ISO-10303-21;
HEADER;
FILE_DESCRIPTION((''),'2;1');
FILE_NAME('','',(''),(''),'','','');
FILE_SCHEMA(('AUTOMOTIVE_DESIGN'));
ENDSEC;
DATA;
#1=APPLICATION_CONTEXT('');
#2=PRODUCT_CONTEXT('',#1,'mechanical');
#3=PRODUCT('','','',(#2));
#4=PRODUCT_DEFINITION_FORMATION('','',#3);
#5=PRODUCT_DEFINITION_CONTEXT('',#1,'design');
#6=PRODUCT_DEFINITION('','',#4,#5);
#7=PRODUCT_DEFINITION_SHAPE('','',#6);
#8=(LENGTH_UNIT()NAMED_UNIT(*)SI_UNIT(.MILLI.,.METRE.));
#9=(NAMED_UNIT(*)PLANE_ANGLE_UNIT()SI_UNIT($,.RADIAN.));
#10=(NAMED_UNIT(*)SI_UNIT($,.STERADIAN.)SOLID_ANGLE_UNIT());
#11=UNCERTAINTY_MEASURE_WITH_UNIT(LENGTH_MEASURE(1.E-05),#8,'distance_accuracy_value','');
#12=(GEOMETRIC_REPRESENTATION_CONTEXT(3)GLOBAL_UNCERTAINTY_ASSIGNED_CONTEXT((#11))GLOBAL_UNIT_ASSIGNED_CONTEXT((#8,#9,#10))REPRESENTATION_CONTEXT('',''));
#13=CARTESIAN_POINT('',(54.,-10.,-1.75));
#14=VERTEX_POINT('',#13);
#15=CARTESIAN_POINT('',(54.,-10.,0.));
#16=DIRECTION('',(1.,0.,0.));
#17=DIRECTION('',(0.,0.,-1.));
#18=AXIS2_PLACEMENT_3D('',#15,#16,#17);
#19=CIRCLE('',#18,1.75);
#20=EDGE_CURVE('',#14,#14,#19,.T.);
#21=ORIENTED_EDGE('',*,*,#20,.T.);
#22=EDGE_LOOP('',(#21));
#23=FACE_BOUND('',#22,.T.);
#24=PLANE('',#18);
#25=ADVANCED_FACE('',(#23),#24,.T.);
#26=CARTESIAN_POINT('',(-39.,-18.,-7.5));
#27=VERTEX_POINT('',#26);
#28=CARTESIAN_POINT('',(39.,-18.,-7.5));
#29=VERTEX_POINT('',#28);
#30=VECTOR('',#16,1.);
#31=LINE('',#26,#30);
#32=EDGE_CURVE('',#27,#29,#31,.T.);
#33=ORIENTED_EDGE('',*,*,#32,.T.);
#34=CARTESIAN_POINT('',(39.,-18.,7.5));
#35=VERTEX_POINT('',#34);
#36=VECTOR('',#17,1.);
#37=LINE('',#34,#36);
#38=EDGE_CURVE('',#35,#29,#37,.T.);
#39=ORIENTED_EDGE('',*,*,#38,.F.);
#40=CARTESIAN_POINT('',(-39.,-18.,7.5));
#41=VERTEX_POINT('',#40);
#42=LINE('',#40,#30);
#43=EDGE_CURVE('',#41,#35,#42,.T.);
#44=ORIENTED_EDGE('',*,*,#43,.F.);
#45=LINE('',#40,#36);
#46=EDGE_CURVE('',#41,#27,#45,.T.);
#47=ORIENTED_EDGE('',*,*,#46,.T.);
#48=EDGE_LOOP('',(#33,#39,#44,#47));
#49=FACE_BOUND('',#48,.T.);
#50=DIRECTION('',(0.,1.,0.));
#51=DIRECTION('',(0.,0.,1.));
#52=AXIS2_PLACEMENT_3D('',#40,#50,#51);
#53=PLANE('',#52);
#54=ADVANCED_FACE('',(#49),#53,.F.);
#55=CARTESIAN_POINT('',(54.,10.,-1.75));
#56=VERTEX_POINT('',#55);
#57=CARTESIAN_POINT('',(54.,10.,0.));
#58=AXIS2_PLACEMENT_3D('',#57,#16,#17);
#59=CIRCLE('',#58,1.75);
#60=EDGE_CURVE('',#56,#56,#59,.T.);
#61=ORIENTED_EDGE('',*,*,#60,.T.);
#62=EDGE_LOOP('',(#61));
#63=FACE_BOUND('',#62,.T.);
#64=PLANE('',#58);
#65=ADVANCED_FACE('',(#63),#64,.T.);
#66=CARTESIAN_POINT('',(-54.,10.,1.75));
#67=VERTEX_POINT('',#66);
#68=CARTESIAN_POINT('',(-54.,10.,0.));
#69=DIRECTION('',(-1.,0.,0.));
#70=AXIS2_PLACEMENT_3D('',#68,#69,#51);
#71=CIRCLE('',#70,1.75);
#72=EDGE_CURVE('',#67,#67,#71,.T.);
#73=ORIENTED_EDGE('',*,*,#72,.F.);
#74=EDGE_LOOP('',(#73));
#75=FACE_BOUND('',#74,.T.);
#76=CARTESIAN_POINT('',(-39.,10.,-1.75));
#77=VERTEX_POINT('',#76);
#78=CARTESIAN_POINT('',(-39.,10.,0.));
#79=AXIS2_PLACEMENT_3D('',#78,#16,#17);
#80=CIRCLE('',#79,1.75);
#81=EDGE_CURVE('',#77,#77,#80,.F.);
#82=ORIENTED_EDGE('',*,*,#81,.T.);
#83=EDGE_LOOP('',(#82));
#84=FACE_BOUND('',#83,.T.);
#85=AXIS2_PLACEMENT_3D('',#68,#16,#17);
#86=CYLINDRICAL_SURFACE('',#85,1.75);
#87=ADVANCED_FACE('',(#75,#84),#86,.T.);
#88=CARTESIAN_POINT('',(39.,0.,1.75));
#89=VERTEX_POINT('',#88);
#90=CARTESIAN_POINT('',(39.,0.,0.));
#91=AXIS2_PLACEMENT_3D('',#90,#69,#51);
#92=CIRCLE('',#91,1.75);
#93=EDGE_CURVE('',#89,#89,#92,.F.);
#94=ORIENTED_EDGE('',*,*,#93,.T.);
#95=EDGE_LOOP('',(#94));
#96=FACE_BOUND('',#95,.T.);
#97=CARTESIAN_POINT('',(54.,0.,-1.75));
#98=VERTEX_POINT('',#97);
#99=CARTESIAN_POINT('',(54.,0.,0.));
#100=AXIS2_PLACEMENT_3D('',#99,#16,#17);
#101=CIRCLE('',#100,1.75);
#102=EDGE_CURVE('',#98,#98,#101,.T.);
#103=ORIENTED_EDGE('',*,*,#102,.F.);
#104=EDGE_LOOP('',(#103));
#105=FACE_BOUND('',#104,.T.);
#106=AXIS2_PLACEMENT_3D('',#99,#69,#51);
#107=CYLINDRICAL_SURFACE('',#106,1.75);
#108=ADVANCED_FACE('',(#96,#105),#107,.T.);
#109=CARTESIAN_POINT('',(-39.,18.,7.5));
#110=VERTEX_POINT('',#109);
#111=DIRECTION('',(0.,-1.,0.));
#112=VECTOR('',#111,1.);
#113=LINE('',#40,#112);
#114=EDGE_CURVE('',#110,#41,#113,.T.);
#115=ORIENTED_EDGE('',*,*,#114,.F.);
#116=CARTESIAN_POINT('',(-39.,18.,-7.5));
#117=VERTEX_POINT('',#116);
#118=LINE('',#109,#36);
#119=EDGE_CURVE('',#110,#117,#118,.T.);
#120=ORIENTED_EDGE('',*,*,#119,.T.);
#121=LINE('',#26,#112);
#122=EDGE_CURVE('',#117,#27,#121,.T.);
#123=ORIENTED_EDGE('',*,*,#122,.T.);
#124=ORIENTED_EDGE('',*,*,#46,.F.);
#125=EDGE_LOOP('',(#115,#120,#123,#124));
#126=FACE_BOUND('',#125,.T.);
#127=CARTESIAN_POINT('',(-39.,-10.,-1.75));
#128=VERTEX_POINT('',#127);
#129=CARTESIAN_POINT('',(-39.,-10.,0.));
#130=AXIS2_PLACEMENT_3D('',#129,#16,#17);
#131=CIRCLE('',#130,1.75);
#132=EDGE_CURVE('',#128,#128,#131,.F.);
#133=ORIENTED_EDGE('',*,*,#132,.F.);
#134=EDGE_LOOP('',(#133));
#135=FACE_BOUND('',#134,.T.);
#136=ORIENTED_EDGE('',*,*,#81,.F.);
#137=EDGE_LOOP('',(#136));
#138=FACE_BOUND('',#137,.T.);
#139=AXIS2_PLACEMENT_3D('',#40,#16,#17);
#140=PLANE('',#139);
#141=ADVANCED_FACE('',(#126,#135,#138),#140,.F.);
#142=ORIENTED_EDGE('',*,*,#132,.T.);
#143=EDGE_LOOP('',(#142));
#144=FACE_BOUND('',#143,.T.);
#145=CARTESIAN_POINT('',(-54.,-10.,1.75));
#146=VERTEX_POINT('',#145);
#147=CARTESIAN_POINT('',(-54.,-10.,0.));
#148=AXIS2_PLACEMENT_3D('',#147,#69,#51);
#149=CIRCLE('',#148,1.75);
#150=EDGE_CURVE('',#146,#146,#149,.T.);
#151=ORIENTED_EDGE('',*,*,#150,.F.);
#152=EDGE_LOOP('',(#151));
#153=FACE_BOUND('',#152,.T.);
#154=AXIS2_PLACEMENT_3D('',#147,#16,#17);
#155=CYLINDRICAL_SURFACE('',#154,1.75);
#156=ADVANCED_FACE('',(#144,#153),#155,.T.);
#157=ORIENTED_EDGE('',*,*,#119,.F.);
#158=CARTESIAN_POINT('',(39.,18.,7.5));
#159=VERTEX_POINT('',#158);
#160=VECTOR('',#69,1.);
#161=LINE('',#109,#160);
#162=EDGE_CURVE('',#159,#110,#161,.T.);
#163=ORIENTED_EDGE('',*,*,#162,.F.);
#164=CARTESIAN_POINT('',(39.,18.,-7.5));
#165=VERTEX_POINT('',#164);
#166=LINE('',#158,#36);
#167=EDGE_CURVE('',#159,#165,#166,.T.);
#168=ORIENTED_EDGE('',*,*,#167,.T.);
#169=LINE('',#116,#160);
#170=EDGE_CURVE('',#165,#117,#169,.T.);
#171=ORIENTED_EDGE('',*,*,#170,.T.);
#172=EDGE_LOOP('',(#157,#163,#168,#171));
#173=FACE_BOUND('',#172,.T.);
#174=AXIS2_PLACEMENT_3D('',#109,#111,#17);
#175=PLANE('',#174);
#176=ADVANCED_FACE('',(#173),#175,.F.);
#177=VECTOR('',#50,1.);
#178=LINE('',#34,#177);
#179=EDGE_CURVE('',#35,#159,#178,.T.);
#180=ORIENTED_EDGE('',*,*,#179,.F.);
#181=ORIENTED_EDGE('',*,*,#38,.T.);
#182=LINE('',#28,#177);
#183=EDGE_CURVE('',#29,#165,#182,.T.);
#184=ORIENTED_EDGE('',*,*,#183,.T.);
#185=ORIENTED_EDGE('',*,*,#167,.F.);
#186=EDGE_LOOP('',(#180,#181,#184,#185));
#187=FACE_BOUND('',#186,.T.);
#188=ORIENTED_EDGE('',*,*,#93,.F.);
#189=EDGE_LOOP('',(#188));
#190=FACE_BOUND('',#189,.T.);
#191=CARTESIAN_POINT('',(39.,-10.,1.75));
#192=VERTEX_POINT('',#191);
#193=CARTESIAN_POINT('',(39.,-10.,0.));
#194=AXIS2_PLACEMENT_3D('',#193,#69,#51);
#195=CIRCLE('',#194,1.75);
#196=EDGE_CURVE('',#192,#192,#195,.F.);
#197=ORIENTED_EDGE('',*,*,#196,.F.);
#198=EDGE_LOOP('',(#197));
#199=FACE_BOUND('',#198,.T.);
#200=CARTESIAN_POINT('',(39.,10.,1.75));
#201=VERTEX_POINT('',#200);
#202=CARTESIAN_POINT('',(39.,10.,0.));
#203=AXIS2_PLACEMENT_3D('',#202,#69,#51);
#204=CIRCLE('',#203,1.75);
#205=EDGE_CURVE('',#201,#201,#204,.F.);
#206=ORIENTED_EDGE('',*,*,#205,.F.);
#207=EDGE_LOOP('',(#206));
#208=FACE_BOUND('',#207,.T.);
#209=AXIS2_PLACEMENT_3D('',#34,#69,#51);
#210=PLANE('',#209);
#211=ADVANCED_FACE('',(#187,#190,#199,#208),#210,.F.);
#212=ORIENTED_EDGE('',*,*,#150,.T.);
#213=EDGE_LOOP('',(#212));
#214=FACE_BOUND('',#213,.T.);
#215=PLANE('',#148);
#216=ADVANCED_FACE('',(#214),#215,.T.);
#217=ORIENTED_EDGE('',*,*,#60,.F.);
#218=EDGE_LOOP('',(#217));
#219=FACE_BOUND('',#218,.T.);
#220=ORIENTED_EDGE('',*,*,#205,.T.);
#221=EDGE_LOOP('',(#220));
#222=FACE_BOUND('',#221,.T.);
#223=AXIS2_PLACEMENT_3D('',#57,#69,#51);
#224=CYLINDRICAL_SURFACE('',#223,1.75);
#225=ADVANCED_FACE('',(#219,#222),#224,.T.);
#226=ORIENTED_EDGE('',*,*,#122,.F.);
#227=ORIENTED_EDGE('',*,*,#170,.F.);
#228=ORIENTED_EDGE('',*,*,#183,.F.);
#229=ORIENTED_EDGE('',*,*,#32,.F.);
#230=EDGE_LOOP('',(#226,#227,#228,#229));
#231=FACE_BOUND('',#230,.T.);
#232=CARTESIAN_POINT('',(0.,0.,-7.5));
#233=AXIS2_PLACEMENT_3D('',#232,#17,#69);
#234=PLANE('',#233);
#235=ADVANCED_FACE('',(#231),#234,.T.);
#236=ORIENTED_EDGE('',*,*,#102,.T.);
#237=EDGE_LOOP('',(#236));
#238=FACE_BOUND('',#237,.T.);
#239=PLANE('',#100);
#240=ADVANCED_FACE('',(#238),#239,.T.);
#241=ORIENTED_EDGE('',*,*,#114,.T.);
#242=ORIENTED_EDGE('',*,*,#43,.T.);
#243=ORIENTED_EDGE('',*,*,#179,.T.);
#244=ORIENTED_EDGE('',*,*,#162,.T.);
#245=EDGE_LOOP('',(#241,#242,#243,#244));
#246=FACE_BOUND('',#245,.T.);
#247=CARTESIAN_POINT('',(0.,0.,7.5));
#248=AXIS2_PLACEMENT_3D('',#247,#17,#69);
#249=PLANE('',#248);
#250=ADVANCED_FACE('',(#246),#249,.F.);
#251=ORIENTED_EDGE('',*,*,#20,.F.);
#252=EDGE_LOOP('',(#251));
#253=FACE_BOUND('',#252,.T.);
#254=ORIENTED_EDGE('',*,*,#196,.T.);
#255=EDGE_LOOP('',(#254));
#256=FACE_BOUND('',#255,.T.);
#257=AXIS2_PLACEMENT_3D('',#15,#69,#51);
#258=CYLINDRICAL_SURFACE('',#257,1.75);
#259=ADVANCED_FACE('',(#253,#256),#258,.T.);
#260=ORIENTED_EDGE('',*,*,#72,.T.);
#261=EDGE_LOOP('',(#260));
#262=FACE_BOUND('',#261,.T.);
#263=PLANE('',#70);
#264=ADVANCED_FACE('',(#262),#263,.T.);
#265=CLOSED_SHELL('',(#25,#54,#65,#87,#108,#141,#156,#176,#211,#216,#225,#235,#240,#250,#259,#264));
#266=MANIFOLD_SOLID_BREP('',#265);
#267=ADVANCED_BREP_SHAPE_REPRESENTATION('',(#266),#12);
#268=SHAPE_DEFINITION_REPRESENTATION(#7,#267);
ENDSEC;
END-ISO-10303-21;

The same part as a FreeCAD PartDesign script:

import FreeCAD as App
import Part
import Sketcher


def add_polygon(sketch, points):
    """Adds a closed chain of lines whose ends are joined by coincident constraints."""
    first, n = sketch.GeometryCount, len(points)
    for a, b in zip(points, points[1:] + points[:1]):
        sketch.addGeometry(Part.LineSegment(App.Vector(*a, 0), App.Vector(*b, 0)), False)
    for i in range(n):
        sketch.addConstraint(Sketcher.Constraint("Coincident", first + i, 2, first + (i + 1) % n, 1))

doc = App.newDocument("Part")
body = doc.addObject("PartDesign::Body", "Body")

sketch1 = body.newObject("Sketcher::SketchObject", "Sketch")
sketch1.AttachmentSupport = (doc.getObject("XY_Plane"), [""])
sketch1.MapMode = "FlatFace"
add_polygon(sketch1, [(-39, 18), (-39, -18), (39, -18), (39, 18)])
sketch1.addConstraint(Sketcher.Constraint("Vertical", 0))
sketch1.addConstraint(Sketcher.Constraint("Horizontal", 1))
sketch1.addConstraint(Sketcher.Constraint("Vertical", 2))
sketch1.addConstraint(Sketcher.Constraint("Horizontal", 3))
sketch1.addConstraint(Sketcher.Constraint("Symmetric", 0, 2, 2, 2, -1, 1))
sketch1.addConstraint(Sketcher.Constraint("DistanceX", 1, 1, 1, 2, 78.0))
sketch1.addConstraint(Sketcher.Constraint("DistanceY", 0, 2, 0, 1, 36.0))
pad1 = body.newObject("PartDesign::Pad", "Pad")
pad1.Profile = sketch1
pad1.Length = 15
pad1.Midplane = True

sketch2 = body.newObject("Sketcher::SketchObject", "Sketch001")
sketch2.AttachmentSupport = (doc.getObject("YZ_Plane"), [""])
sketch2.MapMode = "FlatFace"
sketch2.AttachmentOffset = App.Placement(App.Vector(0, 0, 39), App.Rotation())
sketch2.addGeometry(Part.Circle(App.Vector(-10, 0, 0), App.Vector(0, 0, 1), 1.8), False)
sketch2.addGeometry(Part.Circle(App.Vector(0, 0, 0), App.Vector(0, 0, 1), 1.8), False)
sketch2.addGeometry(Part.Circle(App.Vector(10, 0, 0), App.Vector(0, 0, 1), 1.8), False)
sketch2.addConstraint(Sketcher.Constraint("Coincident", 1, 3, -1, 1))
sketch2.addConstraint(Sketcher.Constraint("Equal", 0, 1))
sketch2.addConstraint(Sketcher.Constraint("Equal", 1, 2))
sketch2.addConstraint(Sketcher.Constraint("Symmetric", 0, 3, 2, 3, -1, 1))
sketch2.addConstraint(Sketcher.Constraint("PointOnObject", 0, 3, -1))
sketch2.addConstraint(Sketcher.Constraint("Diameter", 0, 3.5))
sketch2.addConstraint(Sketcher.Constraint("DistanceX", 0, 3, -1, 1, 10.0))
pad2 = body.newObject("PartDesign::Pad", "Pad001")
pad2.Profile = sketch2
pad2.Length = 15

sketch3 = body.newObject("Sketcher::SketchObject", "Sketch002")
sketch3.AttachmentSupport = (doc.getObject("YZ_Plane"), [""])
sketch3.MapMode = "FlatFace"
sketch3.AttachmentOffset = App.Placement(App.Vector(0, 0, -54), App.Rotation())
sketch3.addGeometry(Part.Circle(App.Vector(10, 0, 0), App.Vector(0, 0, 1), 1.8), False)
sketch3.addGeometry(Part.Circle(App.Vector(-10, 0, 0), App.Vector(0, 0, 1), 1.8), False)
sketch3.addConstraint(Sketcher.Constraint("Equal", 0, 1))
sketch3.addConstraint(Sketcher.Constraint("Symmetric", 0, 3, 1, 3, -1, 1))
sketch3.addConstraint(Sketcher.Constraint("PointOnObject", 0, 3, -1))
sketch3.addConstraint(Sketcher.Constraint("Diameter", 0, 3.5))
sketch3.addConstraint(Sketcher.Constraint("DistanceX", -1, 1, 0, 3, 10.0))
pad3 = body.newObject("PartDesign::Pad", "Pad002")
pad3.Profile = sketch3
pad3.Length = 15

doc.recompute()
